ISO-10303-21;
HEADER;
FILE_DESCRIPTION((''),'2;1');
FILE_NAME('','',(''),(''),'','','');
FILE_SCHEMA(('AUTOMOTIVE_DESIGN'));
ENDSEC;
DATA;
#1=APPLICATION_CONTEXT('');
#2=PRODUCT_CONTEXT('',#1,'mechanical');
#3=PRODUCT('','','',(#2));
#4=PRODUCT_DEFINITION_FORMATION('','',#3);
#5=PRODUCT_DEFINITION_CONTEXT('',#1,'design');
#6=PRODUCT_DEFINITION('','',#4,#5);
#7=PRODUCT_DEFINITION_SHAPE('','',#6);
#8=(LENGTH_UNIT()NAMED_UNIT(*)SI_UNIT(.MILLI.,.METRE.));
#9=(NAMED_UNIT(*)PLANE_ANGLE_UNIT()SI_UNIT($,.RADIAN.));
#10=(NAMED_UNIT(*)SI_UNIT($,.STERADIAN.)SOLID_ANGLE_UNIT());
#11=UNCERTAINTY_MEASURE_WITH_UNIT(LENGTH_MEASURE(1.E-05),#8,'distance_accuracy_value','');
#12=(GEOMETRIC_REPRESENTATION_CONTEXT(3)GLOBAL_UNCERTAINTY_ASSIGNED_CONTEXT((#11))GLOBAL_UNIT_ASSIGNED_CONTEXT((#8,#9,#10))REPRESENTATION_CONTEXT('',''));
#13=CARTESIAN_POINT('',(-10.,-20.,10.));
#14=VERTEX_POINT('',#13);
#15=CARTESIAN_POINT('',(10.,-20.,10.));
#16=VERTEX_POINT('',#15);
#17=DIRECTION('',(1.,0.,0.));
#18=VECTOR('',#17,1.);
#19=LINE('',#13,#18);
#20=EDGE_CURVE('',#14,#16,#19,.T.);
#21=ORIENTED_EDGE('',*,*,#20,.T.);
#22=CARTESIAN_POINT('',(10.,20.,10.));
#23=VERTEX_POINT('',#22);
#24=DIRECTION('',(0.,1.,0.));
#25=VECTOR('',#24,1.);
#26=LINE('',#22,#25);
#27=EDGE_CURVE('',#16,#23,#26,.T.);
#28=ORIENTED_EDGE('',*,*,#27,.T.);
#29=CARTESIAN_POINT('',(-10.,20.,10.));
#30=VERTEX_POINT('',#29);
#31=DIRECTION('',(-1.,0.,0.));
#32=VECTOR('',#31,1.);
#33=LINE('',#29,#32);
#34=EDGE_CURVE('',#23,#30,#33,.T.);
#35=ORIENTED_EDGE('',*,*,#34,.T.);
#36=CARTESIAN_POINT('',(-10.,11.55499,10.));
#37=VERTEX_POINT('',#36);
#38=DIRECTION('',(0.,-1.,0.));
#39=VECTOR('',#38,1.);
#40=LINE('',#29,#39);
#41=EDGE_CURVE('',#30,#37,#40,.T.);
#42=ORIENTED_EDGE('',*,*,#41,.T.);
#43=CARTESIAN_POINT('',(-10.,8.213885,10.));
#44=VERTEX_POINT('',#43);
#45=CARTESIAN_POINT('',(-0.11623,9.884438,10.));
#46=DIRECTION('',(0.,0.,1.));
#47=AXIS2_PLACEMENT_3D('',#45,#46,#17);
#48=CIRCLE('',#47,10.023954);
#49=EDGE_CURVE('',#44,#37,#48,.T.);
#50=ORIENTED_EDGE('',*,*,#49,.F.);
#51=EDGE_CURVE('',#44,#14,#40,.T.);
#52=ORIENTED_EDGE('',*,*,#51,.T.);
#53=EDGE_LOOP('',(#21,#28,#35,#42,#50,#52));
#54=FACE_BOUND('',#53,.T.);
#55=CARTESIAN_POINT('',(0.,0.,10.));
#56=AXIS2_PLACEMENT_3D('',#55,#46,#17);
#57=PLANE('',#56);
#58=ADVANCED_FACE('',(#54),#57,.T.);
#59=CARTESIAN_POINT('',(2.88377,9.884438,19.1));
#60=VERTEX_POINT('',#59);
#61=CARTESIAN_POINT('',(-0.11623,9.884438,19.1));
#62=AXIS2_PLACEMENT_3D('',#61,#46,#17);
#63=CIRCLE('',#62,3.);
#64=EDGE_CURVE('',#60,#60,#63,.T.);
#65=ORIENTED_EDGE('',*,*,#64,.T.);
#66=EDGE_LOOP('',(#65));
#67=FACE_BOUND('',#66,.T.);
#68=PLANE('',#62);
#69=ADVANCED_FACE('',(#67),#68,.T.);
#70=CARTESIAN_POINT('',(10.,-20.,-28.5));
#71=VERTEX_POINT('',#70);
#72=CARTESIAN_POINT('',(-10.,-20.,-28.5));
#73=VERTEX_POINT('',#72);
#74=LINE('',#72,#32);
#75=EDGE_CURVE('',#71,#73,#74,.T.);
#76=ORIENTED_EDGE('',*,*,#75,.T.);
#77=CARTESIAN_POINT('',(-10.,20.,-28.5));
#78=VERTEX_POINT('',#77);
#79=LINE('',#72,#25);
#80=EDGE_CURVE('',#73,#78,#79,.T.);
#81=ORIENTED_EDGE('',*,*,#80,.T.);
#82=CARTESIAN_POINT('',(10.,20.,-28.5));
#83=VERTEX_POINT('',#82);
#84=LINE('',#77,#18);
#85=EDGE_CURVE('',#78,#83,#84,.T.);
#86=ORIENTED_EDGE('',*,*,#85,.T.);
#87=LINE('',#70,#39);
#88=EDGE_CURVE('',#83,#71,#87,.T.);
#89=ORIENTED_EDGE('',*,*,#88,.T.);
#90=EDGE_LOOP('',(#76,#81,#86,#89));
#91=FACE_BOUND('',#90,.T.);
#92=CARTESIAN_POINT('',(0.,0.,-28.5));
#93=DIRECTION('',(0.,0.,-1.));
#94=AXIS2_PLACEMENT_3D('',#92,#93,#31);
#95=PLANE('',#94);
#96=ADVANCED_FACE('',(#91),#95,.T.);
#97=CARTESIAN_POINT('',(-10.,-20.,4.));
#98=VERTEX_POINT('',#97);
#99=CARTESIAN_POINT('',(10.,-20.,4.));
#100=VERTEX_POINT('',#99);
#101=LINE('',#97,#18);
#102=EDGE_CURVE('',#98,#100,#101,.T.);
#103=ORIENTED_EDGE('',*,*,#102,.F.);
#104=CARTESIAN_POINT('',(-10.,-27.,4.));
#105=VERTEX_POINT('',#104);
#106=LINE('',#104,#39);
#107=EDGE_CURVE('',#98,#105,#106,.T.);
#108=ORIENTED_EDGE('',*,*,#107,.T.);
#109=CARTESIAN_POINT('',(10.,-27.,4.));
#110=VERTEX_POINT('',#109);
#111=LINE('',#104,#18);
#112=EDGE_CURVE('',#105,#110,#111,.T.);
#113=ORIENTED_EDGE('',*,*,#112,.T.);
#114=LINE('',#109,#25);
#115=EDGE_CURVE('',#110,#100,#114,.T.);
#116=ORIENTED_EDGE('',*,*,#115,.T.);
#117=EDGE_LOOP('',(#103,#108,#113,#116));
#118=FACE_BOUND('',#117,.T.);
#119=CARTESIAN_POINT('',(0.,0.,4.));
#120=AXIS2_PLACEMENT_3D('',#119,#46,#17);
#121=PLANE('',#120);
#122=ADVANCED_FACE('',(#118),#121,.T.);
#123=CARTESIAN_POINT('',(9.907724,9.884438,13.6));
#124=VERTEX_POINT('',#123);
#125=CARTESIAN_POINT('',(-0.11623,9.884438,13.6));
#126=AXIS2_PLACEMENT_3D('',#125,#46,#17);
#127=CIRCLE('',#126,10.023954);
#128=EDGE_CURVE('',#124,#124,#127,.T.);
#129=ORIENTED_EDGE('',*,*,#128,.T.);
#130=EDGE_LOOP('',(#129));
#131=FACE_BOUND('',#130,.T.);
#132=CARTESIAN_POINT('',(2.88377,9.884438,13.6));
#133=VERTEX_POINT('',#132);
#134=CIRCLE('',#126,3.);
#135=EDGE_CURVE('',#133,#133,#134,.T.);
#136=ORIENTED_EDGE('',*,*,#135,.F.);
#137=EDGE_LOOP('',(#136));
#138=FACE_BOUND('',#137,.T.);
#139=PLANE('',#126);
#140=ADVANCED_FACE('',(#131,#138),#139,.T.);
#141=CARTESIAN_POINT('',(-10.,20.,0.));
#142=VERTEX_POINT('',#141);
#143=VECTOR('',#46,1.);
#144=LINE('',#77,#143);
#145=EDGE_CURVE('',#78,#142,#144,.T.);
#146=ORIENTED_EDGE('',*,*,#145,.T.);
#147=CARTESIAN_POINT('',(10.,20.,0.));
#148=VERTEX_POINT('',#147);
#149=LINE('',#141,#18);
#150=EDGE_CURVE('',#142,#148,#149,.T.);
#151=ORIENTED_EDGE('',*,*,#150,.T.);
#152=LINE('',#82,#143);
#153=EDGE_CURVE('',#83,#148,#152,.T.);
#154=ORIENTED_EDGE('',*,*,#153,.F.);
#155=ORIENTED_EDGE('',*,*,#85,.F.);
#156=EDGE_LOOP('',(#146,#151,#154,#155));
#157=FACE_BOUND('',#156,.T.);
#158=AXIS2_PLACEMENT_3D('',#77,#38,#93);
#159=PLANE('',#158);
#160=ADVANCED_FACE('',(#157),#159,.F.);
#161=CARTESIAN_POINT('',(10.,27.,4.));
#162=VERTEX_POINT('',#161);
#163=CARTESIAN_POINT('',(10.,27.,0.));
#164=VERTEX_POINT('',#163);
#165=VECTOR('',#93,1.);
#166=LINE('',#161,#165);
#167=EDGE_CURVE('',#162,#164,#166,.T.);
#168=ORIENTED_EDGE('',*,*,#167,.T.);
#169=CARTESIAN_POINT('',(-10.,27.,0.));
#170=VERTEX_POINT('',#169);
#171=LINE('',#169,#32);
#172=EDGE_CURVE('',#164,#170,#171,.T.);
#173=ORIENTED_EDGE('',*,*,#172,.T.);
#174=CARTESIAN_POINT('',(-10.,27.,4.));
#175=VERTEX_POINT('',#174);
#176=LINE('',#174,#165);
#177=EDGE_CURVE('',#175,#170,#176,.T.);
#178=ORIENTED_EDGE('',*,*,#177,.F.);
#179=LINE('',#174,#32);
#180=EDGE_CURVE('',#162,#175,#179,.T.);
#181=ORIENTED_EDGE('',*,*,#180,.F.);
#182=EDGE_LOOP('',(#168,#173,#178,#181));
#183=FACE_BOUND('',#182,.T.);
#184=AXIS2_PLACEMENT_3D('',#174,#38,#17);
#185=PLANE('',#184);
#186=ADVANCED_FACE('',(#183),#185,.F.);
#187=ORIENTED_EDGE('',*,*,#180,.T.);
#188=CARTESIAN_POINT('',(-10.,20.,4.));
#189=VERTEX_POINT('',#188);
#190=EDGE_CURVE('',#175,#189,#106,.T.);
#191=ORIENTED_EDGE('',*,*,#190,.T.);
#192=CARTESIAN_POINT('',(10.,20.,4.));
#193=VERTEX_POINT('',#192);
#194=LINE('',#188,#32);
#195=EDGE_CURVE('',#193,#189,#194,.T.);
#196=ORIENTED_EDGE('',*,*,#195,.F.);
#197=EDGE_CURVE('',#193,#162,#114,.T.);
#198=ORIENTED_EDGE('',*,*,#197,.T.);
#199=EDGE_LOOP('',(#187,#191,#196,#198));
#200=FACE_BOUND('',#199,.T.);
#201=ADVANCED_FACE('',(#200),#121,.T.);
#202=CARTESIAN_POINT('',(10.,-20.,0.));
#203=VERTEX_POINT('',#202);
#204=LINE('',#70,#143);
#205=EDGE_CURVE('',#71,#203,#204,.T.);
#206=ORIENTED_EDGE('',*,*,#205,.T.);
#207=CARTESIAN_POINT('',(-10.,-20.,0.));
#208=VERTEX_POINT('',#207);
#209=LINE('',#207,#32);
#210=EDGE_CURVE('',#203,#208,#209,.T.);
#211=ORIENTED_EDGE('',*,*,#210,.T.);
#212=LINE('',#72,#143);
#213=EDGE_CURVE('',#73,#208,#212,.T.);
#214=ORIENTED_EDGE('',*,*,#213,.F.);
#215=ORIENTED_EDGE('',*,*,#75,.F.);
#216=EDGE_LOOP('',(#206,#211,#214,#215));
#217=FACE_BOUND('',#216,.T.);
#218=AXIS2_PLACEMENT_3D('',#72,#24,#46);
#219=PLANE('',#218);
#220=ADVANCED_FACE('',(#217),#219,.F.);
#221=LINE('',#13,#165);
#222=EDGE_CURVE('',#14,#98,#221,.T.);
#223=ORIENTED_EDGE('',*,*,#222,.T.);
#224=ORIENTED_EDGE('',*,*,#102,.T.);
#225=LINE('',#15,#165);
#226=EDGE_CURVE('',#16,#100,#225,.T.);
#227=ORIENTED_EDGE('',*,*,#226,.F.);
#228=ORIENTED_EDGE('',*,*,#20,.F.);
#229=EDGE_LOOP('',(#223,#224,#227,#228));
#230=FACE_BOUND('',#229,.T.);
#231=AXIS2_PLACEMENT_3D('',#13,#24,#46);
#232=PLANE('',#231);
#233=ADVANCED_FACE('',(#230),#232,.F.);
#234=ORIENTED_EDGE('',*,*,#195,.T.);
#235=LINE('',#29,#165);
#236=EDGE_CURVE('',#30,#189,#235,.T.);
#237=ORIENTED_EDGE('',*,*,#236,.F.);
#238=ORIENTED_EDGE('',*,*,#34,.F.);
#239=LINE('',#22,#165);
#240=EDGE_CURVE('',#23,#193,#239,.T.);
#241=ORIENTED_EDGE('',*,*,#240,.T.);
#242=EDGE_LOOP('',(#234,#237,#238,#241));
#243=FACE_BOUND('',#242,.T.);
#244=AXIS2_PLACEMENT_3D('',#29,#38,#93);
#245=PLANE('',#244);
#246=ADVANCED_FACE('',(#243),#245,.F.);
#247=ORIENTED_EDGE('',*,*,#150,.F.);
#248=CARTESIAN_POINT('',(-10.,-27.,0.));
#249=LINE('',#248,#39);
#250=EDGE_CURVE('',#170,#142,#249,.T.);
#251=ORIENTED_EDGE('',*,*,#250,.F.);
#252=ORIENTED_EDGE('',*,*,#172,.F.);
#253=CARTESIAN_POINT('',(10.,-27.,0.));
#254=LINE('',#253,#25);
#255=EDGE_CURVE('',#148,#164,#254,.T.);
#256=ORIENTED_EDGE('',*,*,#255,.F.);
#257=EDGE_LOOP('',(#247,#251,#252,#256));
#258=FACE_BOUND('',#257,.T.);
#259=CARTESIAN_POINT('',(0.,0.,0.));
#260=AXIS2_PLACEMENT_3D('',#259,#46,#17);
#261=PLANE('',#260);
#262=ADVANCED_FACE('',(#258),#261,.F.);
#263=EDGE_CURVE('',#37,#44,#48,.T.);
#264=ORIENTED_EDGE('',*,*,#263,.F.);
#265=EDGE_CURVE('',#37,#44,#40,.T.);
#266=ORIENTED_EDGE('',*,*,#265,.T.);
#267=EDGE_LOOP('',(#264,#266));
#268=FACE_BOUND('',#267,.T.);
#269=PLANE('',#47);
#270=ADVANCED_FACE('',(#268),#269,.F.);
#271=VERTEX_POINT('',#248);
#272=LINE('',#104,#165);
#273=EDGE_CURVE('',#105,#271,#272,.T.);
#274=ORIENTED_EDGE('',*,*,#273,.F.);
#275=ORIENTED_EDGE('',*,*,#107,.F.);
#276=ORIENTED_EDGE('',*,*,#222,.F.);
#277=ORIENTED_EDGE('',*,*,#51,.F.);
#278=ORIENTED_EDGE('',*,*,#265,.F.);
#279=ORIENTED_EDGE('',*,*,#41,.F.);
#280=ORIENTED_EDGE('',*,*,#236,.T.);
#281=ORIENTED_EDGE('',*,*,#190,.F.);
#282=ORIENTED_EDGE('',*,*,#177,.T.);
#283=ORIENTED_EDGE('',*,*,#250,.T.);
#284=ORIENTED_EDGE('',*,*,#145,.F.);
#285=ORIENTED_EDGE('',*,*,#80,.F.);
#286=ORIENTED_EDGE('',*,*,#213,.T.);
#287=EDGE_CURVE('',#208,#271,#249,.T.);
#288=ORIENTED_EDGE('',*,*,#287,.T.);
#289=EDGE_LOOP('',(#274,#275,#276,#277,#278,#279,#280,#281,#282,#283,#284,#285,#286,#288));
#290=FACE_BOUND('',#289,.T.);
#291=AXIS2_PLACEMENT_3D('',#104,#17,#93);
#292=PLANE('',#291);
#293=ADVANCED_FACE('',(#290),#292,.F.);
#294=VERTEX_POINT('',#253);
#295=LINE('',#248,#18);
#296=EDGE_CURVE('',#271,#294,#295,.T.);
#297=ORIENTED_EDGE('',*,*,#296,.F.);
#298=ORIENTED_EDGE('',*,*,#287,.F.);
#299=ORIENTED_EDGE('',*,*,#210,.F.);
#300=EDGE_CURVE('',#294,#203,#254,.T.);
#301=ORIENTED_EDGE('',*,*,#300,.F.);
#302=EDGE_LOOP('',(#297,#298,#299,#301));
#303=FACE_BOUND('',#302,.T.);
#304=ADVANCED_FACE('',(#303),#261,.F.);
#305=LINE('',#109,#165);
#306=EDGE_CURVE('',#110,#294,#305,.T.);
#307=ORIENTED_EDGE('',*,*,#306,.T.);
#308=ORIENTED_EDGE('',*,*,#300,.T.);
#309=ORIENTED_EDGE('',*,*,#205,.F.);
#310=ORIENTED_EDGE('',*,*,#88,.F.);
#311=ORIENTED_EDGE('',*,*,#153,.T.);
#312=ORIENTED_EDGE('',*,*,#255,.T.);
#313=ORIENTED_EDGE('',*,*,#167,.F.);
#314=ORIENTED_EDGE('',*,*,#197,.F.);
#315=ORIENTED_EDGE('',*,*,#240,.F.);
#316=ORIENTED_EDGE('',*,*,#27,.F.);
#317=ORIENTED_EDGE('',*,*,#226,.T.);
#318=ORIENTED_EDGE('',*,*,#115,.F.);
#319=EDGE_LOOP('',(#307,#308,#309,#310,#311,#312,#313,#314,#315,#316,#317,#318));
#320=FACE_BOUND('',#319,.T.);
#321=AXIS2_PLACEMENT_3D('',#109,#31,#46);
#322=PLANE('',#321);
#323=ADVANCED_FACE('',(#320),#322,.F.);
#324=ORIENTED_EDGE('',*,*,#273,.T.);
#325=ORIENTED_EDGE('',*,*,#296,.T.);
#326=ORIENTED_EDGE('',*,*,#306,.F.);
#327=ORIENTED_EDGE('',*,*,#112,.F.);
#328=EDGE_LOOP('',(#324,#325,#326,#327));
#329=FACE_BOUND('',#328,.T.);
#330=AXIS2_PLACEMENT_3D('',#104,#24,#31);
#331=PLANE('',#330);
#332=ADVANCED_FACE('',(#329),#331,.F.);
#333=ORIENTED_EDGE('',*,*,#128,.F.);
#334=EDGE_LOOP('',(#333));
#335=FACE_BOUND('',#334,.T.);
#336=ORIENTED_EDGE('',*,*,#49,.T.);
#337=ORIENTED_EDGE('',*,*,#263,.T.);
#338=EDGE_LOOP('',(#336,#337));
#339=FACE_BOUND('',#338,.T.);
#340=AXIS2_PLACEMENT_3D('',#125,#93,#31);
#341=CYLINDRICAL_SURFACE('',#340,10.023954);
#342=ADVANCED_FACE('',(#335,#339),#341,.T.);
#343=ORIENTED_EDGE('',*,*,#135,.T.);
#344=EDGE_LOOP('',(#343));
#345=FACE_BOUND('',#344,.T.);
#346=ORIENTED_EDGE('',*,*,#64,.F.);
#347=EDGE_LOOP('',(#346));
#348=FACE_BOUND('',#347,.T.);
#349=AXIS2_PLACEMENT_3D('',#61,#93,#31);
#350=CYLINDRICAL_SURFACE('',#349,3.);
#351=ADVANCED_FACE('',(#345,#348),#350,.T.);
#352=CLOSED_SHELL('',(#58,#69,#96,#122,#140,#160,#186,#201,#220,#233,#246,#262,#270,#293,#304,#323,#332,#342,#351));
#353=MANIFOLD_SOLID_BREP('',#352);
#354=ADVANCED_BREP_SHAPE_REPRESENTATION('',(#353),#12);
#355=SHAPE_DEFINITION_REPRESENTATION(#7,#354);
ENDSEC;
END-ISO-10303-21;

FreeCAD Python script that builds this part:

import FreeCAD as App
import Part
import Sketcher
from FreeCAD import Vector

doc = App.newDocument("Part")
body = doc.addObject("PartDesign::Body", "Body")

# Sketch on XY plane
sketch1 = body.newObject("Sketcher::SketchObject", "Sketch")
sketch1.AttachmentSupport = (doc.getObject("XY_Plane"), [""])
sketch1.MapMode = "FlatFace"
sketch1.addGeometry([
    Part.LineSegment(Vector(-10, -27, 0), Vector(10, -27, 0)),
    Part.LineSegment(Vector(10, -27, 0), Vector(10, 27, 0)),
    Part.LineSegment(Vector(10, 27, 0), Vector(-10, 27, 0)),
    Part.LineSegment(Vector(-10, 27, 0), Vector(-10, -27, 0)),
], False)
sketch1.addConstraint([
    Sketcher.Constraint("Coincident", 0, 2, 1, 1),
    Sketcher.Constraint("Coincident", 1, 2, 2, 1),
    Sketcher.Constraint("Coincident", 2, 2, 3, 1),
    Sketcher.Constraint("Coincident", 3, 2, 0, 1),
    Sketcher.Constraint("Horizontal", 0),
    Sketcher.Constraint("Vertical", 1),
    Sketcher.Constraint("Horizontal", 2),
    Sketcher.Constraint("Vertical", 3),
    Sketcher.Constraint("Symmetric", 0, 2, 2, 2, -1, 1),
    Sketcher.Constraint("DistanceX", 0, 1, 0, 2, 20.0),
    Sketcher.Constraint("DistanceY", 1, 1, 1, 2, 54.0),
])
pad1 = body.newObject("PartDesign::Pad", "Pad")
pad1.Profile = sketch1
pad1.Length = 4

# Sketch on XY plane
sketch2 = body.newObject("Sketcher::SketchObject", "Sketch001")
sketch2.AttachmentSupport = (doc.getObject("XY_Plane"), [""])
sketch2.MapMode = "FlatFace"
sketch2.AttachmentOffset = App.Placement(Vector(0, 0, 4), App.Rotation())
sketch2.addGeometry([
    Part.LineSegment(Vector(-10, 20, 0), Vector(-10, -20, 0)),
    Part.LineSegment(Vector(-10, -20, 0), Vector(10, -20, 0)),
    Part.LineSegment(Vector(10, -20, 0), Vector(10, 20, 0)),
    Part.LineSegment(Vector(10, 20, 0), Vector(-10, 20, 0)),
], False)
sketch2.addConstraint([
    Sketcher.Constraint("Coincident", 0, 2, 1, 1),
    Sketcher.Constraint("Coincident", 1, 2, 2, 1),
    Sketcher.Constraint("Coincident", 2, 2, 3, 1),
    Sketcher.Constraint("Coincident", 3, 2, 0, 1),
    Sketcher.Constraint("Vertical", 0),
    Sketcher.Constraint("Horizontal", 1),
    Sketcher.Constraint("Vertical", 2),
    Sketcher.Constraint("Horizontal", 3),
    Sketcher.Constraint("Symmetric", 0, 2, 2, 2, -1, 1),
    Sketcher.Constraint("DistanceX", 1, 1, 1, 2, 20.0),
    Sketcher.Constraint("DistanceY", 0, 2, 0, 1, 40.0),
])
pad2 = body.newObject("PartDesign::Pad", "Pad001")
pad2.Profile = sketch2
pad2.Length = 6

# Sketch on XY plane
sketch3 = body.newObject("Sketcher::SketchObject", "Sketch002")
sketch3.AttachmentSupport = (doc.getObject("XY_Plane"), [""])
sketch3.MapMode = "FlatFace"
sketch3.AttachmentOffset = App.Placement(Vector(0, 0, 10), App.Rotation())
sketch3.addGeometry(Part.Circle(Vector(-0.11623, 9.884438, 0), Vector(0, 0, 1), 10.023954), False)
sketch3.addConstraint([
    Sketcher.Constraint("Diameter", 0, 20.047908),
    Sketcher.Constraint("DistanceX", 0, 3, -1, 1, 0.11623),
    Sketcher.Constraint("DistanceY", -1, 1, 0, 3, 9.884438),
])
pad3 = body.newObject("PartDesign::Pad", "Pad002")
pad3.Profile = sketch3
pad3.Length = 3.6

# Sketch on XY plane
sketch4 = body.newObject("Sketcher::SketchObject", "Sketch003")
sketch4.AttachmentSupport = (doc.getObject("XY_Plane"), [""])
sketch4.MapMode = "FlatFace"
sketch4.AttachmentOffset = App.Placement(Vector(0, 0, 13.6), App.Rotation())
sketch4.addGeometry(Part.Circle(Vector(-0.11623, 9.884438, 0), Vector(0, 0, 1), 3), False)
sketch4.addConstraint([
    Sketcher.Constraint("Diameter", 0, 6.0),
    Sketcher.Constraint("DistanceX", 0, 3, -1, 1, 0.11623),
    Sketcher.Constraint("DistanceY", -1, 1, 0, 3, 9.884438),
])
pad4 = body.newObject("PartDesign::Pad", "Pad003")
pad4.Profile = sketch4
pad4.Length = 5.5

# Sketch on XY plane
sketch5 = body.newObject("Sketcher::SketchObject", "Sketch004")
sketch5.AttachmentSupport = (doc.getObject("XY_Plane"), [""])
sketch5.MapMode = "FlatFace"
sketch5.addGeometry([
    Part.LineSegment(Vector(-10, -20, 0), Vector(-10, 20, 0)),
    Part.LineSegment(Vector(-10, 20, 0), Vector(10, 20, 0)),
    Part.LineSegment(Vector(10, 20, 0), Vector(10, -20, 0)),
    Part.LineSegment(Vector(10, -20, 0), Vector(-10, -20, 0)),
], False)
sketch5.addConstraint([
    Sketcher.Constraint("Coincident", 0, 2, 1, 1),
    Sketcher.Constraint("Coincident", 1, 2, 2, 1),
    Sketcher.Constraint("Coincident", 2, 2, 3, 1),
    Sketcher.Constraint("Coincident", 3, 2, 0, 1),
    Sketcher.Constraint("Vertical", 0),
    Sketcher.Constraint("Horizontal", 1),
    Sketcher.Constraint("Vertical", 2),
    Sketcher.Constraint("Horizontal", 3),
    Sketcher.Constraint("Symmetric", 0, 2, 2, 2, -1, 1),
    Sketcher.Constraint("DistanceX", 1, 1, 1, 2, 20.0),
    Sketcher.Constraint("DistanceY", 0, 1, 0, 2, 40.0),
])
pad5 = body.newObject("PartDesign::Pad", "Pad004")
pad5.Profile = sketch5
pad5.Length = 28.5
pad5.Reversed = True

doc.recompute()
